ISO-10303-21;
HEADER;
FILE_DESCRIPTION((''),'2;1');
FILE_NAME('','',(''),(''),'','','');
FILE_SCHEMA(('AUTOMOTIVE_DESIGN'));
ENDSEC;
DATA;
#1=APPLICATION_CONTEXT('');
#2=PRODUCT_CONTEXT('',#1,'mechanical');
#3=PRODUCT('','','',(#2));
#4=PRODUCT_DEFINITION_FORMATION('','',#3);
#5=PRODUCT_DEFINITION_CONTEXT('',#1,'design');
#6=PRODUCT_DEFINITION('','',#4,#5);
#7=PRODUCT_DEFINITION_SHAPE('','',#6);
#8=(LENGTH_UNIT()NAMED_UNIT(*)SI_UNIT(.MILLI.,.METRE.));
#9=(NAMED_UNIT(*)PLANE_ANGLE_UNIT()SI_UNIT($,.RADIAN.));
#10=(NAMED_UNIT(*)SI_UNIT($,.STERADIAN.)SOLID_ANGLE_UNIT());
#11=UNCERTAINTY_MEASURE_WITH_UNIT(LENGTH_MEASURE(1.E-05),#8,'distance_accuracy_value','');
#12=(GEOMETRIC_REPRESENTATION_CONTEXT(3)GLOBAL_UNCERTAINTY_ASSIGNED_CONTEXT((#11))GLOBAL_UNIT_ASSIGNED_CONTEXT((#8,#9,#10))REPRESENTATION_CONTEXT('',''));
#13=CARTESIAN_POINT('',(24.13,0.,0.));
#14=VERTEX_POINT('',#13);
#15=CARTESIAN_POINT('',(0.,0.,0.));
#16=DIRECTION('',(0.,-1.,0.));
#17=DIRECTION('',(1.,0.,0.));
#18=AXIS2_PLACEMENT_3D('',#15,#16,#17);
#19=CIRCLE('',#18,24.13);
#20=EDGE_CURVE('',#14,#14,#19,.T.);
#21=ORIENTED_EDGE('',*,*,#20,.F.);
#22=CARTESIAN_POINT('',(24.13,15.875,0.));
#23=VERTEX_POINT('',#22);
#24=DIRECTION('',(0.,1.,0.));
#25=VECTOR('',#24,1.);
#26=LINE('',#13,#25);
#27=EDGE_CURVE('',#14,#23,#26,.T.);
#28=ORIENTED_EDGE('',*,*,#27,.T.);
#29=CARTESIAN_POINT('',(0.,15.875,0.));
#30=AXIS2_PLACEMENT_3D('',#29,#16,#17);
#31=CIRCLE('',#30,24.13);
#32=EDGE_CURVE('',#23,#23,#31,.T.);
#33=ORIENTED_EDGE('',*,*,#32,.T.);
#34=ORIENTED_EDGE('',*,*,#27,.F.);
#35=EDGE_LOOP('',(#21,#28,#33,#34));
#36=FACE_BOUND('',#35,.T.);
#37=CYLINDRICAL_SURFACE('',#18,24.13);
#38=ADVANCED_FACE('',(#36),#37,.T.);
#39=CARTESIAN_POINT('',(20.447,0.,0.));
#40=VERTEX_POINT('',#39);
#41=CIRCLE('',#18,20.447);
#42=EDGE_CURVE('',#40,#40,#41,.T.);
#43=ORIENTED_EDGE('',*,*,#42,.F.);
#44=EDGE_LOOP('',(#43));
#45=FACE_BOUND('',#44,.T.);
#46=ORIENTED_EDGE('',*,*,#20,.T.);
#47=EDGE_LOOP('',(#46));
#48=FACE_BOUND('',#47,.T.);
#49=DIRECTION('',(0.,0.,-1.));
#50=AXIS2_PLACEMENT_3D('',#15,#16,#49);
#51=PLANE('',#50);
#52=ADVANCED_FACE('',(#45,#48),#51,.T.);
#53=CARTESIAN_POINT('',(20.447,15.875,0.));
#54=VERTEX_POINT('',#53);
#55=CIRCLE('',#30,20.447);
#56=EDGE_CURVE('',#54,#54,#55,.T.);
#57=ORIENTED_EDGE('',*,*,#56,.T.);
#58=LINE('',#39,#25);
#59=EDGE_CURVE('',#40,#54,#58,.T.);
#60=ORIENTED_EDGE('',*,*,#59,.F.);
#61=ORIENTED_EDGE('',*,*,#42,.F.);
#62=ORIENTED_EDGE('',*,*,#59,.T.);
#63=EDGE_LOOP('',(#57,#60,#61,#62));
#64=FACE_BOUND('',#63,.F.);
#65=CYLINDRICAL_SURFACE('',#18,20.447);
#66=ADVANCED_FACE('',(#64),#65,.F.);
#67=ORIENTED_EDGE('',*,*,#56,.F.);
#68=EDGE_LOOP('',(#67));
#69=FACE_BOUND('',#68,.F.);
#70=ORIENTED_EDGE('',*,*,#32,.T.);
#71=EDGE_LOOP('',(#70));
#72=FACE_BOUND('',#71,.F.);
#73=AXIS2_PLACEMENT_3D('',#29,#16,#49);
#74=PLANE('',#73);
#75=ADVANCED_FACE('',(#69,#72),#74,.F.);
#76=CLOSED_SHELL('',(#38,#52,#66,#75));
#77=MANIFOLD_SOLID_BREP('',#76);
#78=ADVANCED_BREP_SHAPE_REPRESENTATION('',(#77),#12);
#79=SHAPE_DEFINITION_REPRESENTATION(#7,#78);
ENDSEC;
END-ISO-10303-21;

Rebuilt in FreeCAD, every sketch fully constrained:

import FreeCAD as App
import Part
import Sketcher
from FreeCAD import Vector
Q = App.Units.Quantity

doc = App.newDocument("Part")
params = doc.addObject("Spreadsheet::Sheet", "Params")
for row, (alias, value) in enumerate([
    ("sketch1_diameter", "1.9 in"),
    ("sketch1_diameter2", "1.61 in"),
    ("pad1_length", "0.625 in"),
], start=1):
    params.set(f"A{row}", alias)
    params.set(f"B{row}", "=" + value)
    params.setAlias(f"B{row}", alias)

body = doc.addObject("PartDesign::Body", "Body")

sketch1 = body.newObject("Sketcher::SketchObject", "Sketch")
sketch1.AttachmentSupport = (doc.getObject("XZ_Plane"), [""])
sketch1.MapMode = "FlatFace"
sketch1.addGeometry(Part.Circle(Vector(0, 0, 0), Vector(0, 0, 1), 24.13), False)
sketch1.addGeometry(Part.Circle(Vector(0, 0, 0), Vector(0, 0, 1), 20.447), False)
sketch1.addConstraint(Sketcher.Constraint("Coincident", 0, 3, -1, 1))
sketch1.addConstraint(Sketcher.Constraint("Coincident", 1, 3, -1, 1))
sketch1.addConstraint(Sketcher.Constraint("Diameter", 0, Q("1.9 in")))
sketch1.addConstraint(Sketcher.Constraint("Diameter", 1, Q("1.61 in")))
sketch1.setExpression("Constraints[2]", "Params.sketch1_diameter")
sketch1.setExpression("Constraints[3]", "Params.sketch1_diameter2")
pad1 = body.newObject("PartDesign::Pad", "Pad")
pad1.Profile = sketch1
pad1.setExpression("Length", "Params.pad1_length")
pad1.Reversed = True

doc.recompute()
